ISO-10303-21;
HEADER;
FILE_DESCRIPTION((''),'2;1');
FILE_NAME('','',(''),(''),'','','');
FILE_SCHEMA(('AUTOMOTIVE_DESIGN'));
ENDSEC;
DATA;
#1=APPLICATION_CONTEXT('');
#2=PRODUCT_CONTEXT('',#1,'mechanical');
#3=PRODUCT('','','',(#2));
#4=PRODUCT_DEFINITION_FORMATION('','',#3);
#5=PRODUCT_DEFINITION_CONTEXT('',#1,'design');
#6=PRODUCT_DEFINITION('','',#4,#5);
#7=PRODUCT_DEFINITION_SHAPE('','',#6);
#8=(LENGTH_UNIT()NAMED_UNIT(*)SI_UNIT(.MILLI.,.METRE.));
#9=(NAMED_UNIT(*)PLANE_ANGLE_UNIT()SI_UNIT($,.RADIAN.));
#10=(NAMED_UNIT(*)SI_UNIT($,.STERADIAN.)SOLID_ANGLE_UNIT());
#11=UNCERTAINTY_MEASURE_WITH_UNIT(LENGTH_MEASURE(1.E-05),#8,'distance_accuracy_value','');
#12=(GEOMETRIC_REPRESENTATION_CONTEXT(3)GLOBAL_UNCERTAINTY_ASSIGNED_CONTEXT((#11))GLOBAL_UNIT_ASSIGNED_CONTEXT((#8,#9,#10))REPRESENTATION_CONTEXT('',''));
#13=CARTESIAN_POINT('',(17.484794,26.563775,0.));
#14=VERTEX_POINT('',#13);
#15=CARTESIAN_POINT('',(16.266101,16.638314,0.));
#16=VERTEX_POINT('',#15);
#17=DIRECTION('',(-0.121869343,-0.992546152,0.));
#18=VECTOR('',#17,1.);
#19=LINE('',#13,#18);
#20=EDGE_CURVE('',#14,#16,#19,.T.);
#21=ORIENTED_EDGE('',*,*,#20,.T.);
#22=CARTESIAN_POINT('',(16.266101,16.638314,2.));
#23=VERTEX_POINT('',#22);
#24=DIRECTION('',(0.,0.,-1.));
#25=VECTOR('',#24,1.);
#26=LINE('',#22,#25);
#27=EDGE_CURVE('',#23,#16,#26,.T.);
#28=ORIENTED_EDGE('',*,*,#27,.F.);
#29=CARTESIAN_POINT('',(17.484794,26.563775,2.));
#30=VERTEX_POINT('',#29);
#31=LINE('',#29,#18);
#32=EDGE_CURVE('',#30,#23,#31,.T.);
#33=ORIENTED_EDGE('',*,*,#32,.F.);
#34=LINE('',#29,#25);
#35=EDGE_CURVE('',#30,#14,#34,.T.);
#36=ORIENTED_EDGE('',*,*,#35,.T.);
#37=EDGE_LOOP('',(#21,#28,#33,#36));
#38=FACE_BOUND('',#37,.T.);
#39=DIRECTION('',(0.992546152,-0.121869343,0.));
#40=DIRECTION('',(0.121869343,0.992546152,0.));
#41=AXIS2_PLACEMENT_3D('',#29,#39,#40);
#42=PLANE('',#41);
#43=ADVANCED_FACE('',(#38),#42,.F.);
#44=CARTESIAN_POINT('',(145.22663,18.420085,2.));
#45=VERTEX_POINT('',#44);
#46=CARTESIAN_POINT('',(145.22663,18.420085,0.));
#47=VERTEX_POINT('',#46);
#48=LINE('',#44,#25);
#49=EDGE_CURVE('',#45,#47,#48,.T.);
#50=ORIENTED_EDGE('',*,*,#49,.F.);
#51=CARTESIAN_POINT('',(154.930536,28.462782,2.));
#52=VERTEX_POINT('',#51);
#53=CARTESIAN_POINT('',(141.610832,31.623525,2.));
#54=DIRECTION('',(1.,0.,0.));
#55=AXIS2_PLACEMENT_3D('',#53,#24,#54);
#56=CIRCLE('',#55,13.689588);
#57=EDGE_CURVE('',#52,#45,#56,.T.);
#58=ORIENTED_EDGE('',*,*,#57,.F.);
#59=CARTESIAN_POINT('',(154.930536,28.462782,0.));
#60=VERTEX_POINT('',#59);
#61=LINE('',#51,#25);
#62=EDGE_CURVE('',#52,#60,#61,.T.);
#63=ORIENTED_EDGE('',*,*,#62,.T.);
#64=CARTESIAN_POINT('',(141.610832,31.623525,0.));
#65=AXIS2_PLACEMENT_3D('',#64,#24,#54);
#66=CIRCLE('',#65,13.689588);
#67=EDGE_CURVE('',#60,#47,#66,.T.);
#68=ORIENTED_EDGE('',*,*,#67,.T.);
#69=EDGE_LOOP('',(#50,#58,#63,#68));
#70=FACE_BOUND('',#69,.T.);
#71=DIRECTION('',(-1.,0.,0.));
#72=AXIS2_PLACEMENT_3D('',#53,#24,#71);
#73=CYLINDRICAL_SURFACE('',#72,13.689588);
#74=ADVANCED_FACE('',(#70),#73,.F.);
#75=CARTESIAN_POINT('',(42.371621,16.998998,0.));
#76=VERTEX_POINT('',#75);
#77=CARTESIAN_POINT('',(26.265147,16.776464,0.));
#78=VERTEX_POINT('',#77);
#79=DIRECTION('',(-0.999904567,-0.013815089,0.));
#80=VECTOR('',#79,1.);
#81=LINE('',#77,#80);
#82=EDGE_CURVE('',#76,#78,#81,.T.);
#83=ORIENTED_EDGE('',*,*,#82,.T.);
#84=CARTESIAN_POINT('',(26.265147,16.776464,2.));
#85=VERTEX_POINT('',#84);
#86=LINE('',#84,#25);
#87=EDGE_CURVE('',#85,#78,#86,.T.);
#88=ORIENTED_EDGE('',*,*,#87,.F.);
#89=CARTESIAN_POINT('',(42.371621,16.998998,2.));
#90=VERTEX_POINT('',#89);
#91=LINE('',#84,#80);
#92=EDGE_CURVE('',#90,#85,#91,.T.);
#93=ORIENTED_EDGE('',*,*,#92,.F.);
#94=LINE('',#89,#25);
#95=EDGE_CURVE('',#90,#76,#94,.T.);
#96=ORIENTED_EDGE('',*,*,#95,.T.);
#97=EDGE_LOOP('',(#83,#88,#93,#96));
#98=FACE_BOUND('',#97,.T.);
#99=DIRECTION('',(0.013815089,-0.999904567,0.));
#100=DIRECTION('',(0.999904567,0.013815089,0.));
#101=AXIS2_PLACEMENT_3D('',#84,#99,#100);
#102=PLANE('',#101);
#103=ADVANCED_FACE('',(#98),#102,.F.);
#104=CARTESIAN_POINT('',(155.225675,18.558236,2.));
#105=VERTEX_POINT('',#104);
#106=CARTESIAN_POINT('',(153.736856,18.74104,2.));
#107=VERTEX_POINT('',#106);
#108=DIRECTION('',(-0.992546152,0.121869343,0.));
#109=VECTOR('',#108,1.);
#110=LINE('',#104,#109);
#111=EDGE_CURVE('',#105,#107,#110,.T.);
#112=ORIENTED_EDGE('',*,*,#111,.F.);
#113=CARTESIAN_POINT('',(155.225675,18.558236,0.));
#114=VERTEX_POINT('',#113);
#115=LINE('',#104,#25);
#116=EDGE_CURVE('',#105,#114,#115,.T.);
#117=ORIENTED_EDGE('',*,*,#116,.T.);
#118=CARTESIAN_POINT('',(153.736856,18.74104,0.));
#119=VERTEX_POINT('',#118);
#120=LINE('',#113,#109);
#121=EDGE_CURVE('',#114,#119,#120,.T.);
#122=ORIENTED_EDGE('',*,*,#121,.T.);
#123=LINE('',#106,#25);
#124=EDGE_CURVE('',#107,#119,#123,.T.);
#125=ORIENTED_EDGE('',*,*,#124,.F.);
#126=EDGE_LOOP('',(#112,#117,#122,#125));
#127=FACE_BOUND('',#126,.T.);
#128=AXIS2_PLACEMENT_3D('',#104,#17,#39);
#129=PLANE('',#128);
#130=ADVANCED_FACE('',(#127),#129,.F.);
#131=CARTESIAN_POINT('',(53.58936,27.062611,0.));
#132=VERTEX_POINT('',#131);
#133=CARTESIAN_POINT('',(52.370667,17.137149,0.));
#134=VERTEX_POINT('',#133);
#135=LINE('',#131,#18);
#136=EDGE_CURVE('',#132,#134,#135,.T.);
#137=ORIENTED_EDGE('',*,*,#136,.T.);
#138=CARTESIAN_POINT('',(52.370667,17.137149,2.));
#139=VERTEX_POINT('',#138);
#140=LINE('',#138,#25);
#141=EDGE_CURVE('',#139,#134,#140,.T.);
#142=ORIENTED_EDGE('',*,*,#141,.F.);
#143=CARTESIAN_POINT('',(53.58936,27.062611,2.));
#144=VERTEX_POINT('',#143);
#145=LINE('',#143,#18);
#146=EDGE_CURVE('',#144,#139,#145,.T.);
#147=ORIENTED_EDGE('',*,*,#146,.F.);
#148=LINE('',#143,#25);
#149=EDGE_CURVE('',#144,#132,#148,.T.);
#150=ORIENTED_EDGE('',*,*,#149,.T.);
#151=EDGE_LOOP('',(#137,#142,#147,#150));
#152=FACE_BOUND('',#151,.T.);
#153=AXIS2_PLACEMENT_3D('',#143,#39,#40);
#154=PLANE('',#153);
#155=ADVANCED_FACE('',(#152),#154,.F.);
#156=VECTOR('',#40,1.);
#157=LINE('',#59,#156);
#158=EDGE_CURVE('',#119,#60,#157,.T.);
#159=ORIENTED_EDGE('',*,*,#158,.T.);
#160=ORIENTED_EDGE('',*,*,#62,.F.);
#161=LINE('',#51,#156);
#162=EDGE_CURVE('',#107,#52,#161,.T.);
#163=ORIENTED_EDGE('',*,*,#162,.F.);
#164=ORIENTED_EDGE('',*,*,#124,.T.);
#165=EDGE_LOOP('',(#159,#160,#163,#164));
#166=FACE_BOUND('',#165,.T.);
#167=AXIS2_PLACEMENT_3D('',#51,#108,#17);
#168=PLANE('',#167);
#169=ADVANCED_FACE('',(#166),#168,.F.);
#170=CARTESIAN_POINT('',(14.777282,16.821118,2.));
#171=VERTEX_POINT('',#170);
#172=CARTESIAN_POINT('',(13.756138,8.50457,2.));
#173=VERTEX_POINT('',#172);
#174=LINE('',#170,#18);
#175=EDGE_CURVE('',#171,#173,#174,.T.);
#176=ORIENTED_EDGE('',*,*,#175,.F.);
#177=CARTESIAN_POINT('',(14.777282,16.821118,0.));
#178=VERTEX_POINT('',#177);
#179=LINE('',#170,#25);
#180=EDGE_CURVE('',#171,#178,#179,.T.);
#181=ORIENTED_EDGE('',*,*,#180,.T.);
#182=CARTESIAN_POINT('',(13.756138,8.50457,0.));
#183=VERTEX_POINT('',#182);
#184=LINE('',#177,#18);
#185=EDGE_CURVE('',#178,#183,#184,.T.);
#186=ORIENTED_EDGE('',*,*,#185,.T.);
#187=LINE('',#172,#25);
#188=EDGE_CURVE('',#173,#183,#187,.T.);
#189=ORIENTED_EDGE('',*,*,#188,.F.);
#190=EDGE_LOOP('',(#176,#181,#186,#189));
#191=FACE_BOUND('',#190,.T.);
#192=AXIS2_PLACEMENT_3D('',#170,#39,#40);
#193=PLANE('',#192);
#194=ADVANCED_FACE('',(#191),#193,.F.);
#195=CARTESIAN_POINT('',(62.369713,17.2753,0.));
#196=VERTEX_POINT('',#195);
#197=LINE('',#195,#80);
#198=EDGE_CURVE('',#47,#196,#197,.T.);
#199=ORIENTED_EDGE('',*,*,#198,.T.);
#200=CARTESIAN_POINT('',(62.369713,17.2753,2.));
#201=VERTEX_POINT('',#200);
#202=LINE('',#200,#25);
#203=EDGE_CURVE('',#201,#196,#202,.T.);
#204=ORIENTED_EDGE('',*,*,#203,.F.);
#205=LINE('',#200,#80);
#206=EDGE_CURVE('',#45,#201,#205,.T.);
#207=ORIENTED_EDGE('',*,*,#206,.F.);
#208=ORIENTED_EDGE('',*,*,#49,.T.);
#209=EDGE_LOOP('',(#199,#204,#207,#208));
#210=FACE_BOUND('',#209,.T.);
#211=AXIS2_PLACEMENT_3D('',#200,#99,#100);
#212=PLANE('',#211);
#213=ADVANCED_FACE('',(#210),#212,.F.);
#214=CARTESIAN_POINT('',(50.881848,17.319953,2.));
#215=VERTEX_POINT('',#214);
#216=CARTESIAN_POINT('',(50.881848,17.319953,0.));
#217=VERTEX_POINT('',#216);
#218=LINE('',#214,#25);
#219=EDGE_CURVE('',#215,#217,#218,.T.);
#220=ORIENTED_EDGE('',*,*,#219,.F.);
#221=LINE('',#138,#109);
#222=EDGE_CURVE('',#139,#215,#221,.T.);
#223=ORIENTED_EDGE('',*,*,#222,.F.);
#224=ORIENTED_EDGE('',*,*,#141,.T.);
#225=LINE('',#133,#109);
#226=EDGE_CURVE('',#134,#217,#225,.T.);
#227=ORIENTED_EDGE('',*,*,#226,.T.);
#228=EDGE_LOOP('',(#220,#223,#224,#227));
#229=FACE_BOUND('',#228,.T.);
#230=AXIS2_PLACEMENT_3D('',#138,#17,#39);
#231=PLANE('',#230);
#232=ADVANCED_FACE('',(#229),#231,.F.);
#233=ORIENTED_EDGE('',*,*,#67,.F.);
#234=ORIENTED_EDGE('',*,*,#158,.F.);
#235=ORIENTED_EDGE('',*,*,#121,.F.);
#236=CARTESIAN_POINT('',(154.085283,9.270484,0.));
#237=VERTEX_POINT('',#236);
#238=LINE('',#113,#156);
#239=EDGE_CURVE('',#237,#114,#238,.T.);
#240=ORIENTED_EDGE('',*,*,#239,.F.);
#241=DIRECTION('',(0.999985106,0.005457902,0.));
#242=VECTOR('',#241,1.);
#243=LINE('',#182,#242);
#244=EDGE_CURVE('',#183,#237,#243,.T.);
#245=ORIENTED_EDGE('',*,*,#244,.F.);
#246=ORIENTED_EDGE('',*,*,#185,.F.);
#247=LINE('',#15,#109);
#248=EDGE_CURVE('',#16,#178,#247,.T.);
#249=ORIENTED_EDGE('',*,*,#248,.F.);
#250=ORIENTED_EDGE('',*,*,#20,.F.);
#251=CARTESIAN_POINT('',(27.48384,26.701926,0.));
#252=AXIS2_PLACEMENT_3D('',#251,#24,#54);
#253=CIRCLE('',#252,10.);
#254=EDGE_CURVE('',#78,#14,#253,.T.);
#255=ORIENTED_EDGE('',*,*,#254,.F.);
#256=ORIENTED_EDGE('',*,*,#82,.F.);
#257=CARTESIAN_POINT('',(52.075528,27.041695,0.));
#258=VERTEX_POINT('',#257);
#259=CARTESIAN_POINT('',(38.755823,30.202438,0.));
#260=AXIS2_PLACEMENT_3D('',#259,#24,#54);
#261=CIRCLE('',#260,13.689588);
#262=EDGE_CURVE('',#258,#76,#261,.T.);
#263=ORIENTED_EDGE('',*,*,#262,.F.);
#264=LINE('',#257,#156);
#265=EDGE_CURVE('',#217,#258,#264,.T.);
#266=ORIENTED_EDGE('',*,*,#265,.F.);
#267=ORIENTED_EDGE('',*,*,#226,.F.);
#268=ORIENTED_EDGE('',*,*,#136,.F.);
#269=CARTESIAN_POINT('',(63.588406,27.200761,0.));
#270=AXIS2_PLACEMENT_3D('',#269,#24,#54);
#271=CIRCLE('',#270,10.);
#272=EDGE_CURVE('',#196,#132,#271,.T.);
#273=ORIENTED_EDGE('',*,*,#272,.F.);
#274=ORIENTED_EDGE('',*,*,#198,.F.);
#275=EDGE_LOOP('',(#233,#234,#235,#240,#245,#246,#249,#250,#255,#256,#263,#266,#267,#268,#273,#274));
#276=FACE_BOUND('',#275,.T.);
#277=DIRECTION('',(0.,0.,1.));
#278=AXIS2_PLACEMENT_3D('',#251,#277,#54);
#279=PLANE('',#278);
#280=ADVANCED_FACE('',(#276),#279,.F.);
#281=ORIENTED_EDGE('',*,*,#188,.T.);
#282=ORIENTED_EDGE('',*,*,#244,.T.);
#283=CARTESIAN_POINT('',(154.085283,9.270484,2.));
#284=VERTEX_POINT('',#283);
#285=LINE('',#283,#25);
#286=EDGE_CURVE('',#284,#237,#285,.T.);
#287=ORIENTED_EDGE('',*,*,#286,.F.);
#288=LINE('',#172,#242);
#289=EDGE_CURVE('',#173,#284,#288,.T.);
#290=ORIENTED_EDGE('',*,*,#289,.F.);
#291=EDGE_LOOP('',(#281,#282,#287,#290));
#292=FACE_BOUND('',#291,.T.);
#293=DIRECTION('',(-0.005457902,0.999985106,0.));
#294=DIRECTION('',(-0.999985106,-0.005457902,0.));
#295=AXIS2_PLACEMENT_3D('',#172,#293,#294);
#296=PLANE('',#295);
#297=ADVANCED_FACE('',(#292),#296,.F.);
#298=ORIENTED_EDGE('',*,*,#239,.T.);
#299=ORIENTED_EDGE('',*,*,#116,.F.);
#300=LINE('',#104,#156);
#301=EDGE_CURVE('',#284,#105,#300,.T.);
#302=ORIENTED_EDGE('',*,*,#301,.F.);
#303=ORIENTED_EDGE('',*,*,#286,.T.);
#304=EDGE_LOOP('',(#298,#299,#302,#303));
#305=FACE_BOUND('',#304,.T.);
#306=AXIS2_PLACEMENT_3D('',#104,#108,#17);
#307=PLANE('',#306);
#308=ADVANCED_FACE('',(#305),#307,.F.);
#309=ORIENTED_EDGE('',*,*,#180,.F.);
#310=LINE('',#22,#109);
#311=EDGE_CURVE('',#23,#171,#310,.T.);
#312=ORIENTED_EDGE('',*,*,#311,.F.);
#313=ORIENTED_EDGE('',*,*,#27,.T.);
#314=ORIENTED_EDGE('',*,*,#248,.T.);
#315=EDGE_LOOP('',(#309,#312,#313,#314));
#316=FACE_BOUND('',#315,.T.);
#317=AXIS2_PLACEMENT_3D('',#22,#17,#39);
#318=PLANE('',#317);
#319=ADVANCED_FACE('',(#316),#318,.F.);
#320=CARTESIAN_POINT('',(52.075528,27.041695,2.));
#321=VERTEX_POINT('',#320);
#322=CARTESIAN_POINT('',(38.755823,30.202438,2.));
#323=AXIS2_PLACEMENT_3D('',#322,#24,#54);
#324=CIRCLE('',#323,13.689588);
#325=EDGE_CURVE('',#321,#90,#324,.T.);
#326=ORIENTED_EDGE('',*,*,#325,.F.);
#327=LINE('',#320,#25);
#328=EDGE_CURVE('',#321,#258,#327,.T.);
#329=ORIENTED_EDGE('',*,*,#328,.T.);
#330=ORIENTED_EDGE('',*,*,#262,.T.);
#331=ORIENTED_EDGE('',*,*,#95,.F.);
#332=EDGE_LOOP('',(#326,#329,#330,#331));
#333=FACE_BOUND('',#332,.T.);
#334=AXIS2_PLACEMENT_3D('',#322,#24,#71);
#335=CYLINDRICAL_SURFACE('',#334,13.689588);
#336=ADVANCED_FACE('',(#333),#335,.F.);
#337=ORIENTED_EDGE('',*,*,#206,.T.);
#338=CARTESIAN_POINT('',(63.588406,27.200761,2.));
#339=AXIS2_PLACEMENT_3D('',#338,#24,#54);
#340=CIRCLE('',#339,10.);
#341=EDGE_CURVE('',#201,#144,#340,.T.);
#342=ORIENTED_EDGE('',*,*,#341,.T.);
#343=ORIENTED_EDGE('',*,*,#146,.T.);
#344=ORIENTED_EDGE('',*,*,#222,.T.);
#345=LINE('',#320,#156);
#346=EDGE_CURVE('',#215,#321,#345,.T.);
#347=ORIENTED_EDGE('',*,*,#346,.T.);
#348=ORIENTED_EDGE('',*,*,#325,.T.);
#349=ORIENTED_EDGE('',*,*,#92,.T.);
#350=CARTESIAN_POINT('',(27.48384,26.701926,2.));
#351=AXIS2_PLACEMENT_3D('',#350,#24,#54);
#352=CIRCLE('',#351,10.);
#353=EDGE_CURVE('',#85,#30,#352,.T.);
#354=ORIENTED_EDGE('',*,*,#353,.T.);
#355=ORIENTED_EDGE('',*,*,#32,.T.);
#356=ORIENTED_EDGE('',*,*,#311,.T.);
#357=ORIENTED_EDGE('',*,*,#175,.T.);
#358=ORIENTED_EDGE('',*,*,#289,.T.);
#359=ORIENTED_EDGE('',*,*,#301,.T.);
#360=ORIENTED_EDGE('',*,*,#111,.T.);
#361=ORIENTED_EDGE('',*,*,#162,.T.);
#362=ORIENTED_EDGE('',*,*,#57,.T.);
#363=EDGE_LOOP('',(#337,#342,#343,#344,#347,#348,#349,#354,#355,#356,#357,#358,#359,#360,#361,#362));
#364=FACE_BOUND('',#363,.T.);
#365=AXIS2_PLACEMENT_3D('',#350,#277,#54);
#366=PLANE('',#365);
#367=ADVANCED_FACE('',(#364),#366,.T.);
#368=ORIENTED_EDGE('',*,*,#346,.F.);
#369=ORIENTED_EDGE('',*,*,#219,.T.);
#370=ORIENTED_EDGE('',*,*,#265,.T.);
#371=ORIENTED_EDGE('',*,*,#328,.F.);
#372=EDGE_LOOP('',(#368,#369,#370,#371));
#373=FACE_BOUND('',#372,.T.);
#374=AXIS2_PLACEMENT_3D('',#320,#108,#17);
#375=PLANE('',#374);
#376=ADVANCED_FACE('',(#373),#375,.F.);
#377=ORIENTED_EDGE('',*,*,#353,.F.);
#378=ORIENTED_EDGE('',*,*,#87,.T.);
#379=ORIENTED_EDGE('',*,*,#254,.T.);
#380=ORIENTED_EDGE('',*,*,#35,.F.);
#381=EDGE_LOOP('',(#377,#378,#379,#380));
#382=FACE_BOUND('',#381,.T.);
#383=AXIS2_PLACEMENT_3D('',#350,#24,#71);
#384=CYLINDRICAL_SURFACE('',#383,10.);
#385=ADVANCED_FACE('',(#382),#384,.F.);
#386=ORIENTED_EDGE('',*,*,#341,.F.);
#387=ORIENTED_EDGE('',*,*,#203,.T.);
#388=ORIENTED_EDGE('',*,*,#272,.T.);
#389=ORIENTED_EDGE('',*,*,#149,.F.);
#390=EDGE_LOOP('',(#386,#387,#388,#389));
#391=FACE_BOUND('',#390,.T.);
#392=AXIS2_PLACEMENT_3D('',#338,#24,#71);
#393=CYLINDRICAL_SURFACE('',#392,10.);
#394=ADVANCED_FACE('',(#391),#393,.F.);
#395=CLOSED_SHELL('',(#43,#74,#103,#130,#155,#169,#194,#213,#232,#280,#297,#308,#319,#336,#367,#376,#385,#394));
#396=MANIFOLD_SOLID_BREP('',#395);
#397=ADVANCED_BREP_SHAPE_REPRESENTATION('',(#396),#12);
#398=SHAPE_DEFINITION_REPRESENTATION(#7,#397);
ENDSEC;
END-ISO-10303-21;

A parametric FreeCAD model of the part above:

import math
import FreeCAD as App
import Part
import Sketcher
from FreeCAD import Vector
Q = App.Units.Quantity

doc = App.newDocument("Part")
body = doc.addObject("PartDesign::Body", "Body")

sketch1 = body.newObject("Sketcher::SketchObject", "Sketch")
sketch1.AttachmentSupport = (doc.getObject("XY_Plane"), [""])
sketch1.MapMode = "FlatFace"
sketch1.addGeometry(Part.LineSegment(Vector(13.8, 8.5, 0), Vector(154.1, 9.3, 0)), False)
sketch1.addGeometry(Part.LineSegment(Vector(154.1, 9.3, 0), Vector(155.2, 18.6, 0)), False)
sketch1.addGeometry(Part.LineSegment(Vector(155.2, 18.6, 0), Vector(153.7, 18.7, 0)), False)
sketch1.addGeometry(Part.LineSegment(Vector(153.7, 18.7, 0), Vector(154.9, 28.5, 0)), False)
sketch1.addGeometry(Part.ArcOfCircle(Part.Circle(Vector(141.6, 31.6, 0), Vector(0, 0, 1), 13.7), math.radians(-75), math.radians(-13)), False)
sketch1.addGeometry(Part.LineSegment(Vector(145.2, 18.4, 0), Vector(62.4, 17.3, 0)), False)
sketch1.addGeometry(Part.ArcOfCircle(Part.Circle(Vector(63.6, 27.2, 0), Vector(0, 0, 1), 10), math.radians(-179), math.radians(-97)), False)
sketch1.addGeometry(Part.LineSegment(Vector(53.6, 27.1, 0), Vector(52.4, 17.1, 0)), False)
sketch1.addGeometry(Part.LineSegment(Vector(52.4, 17.1, 0), Vector(50.9, 17.3, 0)), False)
sketch1.addGeometry(Part.LineSegment(Vector(50.9, 17.3, 0), Vector(52.1, 27, 0)), False)
sketch1.addGeometry(Part.ArcOfCircle(Part.Circle(Vector(38.8, 30.2, 0), Vector(0, 0, 1), 13.7), math.radians(-75), math.radians(-13)), False)
sketch1.addGeometry(Part.LineSegment(Vector(42.4, 17, 0), Vector(26.3, 16.8, 0)), False)
sketch1.addGeometry(Part.ArcOfCircle(Part.Circle(Vector(27.5, 26.7, 0), Vector(0, 0, 1), 10), math.radians(-179), math.radians(-97)), False)
sketch1.addGeometry(Part.LineSegment(Vector(17.5, 26.6, 0), Vector(16.3, 16.6, 0)), False)
sketch1.addGeometry(Part.LineSegment(Vector(16.3, 16.6, 0), Vector(14.8, 16.8, 0)), False)
sketch1.addGeometry(Part.LineSegment(Vector(14.8, 16.8, 0), Vector(13.8, 8.5, 0)), False)
sketch1.addConstraint(Sketcher.Constraint("Coincident", 0, 2, 1, 1))
sketch1.addConstraint(Sketcher.Constraint("Coincident", 1, 2, 2, 1))
sketch1.addConstraint(Sketcher.Constraint("Coincident", 2, 2, 3, 1))
sketch1.addConstraint(Sketcher.Constraint("Coincident", 3, 2, 4, 2))
sketch1.addConstraint(Sketcher.Constraint("Coincident", 4, 1, 5, 1))
sketch1.addConstraint(Sketcher.Constraint("Coincident", 5, 2, 6, 2))
sketch1.addConstraint(Sketcher.Constraint("Coincident", 6, 1, 7, 1))
sketch1.addConstraint(Sketcher.Constraint("Coincident", 7, 2, 8, 1))
sketch1.addConstraint(Sketcher.Constraint("Coincident", 8, 2, 9, 1))
sketch1.addConstraint(Sketcher.Constraint("Coincident", 9, 2, 10, 2))
sketch1.addConstraint(Sketcher.Constraint("Coincident", 10, 1, 11, 1))
sketch1.addConstraint(Sketcher.Constraint("Coincident", 11, 2, 12, 2))
sketch1.addConstraint(Sketcher.Constraint("Coincident", 12, 1, 13, 1))
sketch1.addConstraint(Sketcher.Constraint("Coincident", 13, 2, 14, 1))
sketch1.addConstraint(Sketcher.Constraint("Coincident", 14, 2, 15, 1))
sketch1.addConstraint(Sketcher.Constraint("Coincident", 15, 2, 0, 1))
sketch1.addConstraint(Sketcher.Constraint("Equal", 4, 10))
sketch1.addConstraint(Sketcher.Constraint("Equal", 6, 12))
sketch1.addConstraint(Sketcher.Constraint("Perpendicular", 1, 2))
sketch1.addConstraint(Sketcher.Constraint("Perpendicular", 2, 3))
sketch1.addConstraint(Sketcher.Constraint("Parallel", 3, 7))
sketch1.addConstraint(Sketcher.Constraint("Perpendicular", 7, 8))
sketch1.addConstraint(Sketcher.Constraint("Perpendicular", 8, 9))
sketch1.addConstraint(Sketcher.Constraint("Parallel", 5, 11))
sketch1.addConstraint(Sketcher.Constraint("Parallel", 9, 13))
sketch1.addConstraint(Sketcher.Constraint("Perpendicular", 13, 14))
sketch1.addConstraint(Sketcher.Constraint("Perpendicular", 14, 15))
sketch1.addConstraint(Sketcher.Constraint("Equal", 2, 8))
sketch1.addConstraint(Sketcher.Constraint("Equal", 3, 9))
sketch1.addConstraint(Sketcher.Constraint("Equal", 7, 13))
sketch1.addConstraint(Sketcher.Constraint("Equal", 8, 14))
sketch1.addConstraint(Sketcher.Constraint("Radius", 6, 10.0))
sketch1.addConstraint(Sketcher.Constraint("Angle", 1, Q("83 deg")))
sketch1.addConstraint(Sketcher.Constraint("Distance", 7, 10.0))
sketch1.addConstraint(Sketcher.Constraint("Distance", 2, 1.5))
sketch1.addConstraint(Sketcher.Constraint("DistanceY", -1, 1, 10, 1, 16.998998))
sketch1.addConstraint(Sketcher.Constraint("Radius", 4, 13.689588))
sketch1.addConstraint(Sketcher.Constraint("Distance", 1, 9.357501))
sketch1.addConstraint(Sketcher.Constraint("DistanceY", -1, 1, 5, 2, 17.2753))
sketch1.addConstraint(Sketcher.Constraint("DistanceX", -1, 1, 13, 2, 16.266101))
sketch1.addConstraint(Sketcher.Constraint("DistanceY", 12, 3, 4, 3, 4.921599))
sketch1.addConstraint(Sketcher.Constraint("DistanceY", 2, 2, 10, 3, 11.461398))
sketch1.addConstraint(Sketcher.Constraint("DistanceY", 0, 2, 4, 1, 9.149601))
sketch1.addConstraint(Sketcher.Constraint("DistanceX", 11, 2, 8, 2, 24.616701))
sketch1.addConstraint(Sketcher.Constraint("DistanceX", 15, 2, 12, 3, 13.727702))
sketch1.addConstraint(Sketcher.Constraint("Distance", 3, 9.79475))
sketch1.addConstraint(Sketcher.Constraint("Distance", 11, 16.108012))
sketch1.addConstraint(Sketcher.Constraint("DistanceX", -1, 1, 4, 3, 141.610832))
sketch1.addConstraint(Sketcher.Constraint("DistanceY", -1, 1, 6, 3, 27.200761))
sketch1.addConstraint(Sketcher.Constraint("DistanceX", -1, 1, 12, 3, 27.48384))
sketch1.addConstraint(Sketcher.Constraint("DistanceY", -1, 1, 2, 2, 18.74104))
sketch1.addConstraint(Sketcher.Constraint("DistanceX", -1, 1, 4, 1, 145.22663))
pad1 = body.newObject("PartDesign::Pad", "Pad")
pad1.Profile = sketch1
pad1.Length = 2

doc.recompute()
